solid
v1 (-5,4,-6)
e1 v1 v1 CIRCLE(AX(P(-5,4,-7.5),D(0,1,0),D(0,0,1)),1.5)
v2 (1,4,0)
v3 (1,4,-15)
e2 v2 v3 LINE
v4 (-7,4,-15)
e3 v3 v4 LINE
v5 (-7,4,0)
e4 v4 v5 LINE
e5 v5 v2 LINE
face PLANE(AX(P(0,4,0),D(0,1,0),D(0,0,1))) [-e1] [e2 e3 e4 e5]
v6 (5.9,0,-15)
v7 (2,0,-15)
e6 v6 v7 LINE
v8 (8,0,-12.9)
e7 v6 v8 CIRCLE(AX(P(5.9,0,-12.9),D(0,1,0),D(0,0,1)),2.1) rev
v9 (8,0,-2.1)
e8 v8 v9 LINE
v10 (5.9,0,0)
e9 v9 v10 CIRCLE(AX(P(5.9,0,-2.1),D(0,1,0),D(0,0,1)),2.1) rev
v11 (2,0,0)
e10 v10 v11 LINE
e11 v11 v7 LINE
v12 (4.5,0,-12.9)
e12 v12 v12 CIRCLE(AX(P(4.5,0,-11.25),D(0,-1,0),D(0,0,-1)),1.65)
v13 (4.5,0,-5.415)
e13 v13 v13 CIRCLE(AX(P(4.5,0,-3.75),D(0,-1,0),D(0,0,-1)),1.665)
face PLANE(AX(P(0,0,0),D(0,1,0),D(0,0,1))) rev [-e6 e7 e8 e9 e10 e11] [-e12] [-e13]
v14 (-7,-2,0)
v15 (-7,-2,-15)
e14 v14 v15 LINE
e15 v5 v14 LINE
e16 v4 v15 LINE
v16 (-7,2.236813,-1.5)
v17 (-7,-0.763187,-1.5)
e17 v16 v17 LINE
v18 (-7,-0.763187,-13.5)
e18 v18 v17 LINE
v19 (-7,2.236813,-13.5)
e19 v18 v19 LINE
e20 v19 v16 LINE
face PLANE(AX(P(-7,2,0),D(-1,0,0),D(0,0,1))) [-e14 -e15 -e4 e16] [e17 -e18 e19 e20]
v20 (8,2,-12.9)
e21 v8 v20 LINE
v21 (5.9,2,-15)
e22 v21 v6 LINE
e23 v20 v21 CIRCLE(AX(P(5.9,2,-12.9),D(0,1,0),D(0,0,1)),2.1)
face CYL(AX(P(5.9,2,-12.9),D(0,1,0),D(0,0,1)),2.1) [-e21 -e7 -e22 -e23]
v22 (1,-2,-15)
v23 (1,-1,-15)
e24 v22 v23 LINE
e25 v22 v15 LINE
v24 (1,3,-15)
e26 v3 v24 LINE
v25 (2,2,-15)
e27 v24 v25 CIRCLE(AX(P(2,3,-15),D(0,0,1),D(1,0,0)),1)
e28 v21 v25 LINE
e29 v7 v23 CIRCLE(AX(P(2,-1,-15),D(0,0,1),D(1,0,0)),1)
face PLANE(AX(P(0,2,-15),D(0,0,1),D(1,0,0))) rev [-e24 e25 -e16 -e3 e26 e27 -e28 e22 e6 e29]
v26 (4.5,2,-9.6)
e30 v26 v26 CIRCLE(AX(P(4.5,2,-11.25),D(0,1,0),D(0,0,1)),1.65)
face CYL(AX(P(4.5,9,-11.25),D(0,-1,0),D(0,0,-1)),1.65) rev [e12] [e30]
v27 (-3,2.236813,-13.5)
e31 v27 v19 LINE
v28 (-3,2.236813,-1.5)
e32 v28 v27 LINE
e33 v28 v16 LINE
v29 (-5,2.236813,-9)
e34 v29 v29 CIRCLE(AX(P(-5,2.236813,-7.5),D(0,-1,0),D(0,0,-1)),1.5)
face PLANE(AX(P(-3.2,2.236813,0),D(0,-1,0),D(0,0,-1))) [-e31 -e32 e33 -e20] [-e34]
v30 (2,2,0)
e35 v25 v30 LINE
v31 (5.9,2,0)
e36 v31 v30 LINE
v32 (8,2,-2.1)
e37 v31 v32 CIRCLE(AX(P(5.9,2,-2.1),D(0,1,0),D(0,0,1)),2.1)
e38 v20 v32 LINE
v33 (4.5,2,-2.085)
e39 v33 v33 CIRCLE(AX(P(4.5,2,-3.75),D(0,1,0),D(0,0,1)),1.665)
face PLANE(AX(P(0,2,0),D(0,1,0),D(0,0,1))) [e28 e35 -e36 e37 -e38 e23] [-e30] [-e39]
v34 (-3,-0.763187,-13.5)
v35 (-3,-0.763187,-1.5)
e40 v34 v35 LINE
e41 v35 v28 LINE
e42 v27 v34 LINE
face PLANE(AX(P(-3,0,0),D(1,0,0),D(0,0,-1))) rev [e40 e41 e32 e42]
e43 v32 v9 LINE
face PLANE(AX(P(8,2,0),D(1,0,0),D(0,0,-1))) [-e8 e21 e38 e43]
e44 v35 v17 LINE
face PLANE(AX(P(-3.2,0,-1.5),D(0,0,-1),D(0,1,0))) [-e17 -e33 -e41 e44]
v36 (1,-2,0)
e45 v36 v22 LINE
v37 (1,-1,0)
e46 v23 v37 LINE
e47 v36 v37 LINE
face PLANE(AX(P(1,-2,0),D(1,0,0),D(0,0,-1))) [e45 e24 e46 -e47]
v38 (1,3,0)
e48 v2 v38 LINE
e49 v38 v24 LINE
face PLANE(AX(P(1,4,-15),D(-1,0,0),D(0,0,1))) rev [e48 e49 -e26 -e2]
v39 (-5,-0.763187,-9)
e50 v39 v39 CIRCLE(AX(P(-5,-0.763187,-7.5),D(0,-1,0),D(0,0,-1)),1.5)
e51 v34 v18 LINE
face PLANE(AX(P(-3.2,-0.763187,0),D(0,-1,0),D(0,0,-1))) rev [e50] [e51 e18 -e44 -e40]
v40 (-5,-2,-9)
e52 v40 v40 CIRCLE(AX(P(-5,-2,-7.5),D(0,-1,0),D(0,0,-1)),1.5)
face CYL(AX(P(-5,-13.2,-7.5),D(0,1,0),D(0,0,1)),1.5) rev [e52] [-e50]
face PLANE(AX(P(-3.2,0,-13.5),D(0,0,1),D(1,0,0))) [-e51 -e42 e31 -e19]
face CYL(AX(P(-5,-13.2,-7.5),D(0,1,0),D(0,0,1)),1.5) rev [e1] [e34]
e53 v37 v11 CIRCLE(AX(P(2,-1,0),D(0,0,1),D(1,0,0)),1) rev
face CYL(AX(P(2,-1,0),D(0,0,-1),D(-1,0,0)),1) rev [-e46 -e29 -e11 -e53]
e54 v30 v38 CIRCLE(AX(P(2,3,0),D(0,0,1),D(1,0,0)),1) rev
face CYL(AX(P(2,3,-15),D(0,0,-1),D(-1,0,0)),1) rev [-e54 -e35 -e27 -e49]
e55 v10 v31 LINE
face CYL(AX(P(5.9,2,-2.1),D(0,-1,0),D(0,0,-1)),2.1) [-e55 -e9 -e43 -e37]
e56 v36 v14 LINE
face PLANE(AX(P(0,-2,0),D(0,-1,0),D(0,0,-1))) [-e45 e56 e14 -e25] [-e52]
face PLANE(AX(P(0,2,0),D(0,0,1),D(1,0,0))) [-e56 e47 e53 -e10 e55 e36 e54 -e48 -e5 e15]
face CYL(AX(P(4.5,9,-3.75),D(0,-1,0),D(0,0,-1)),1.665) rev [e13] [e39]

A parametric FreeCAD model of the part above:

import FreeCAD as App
import Part
import Sketcher
Q = App.Units.Quantity


def edges_at(feature, points):
    """Names of the edges that pass closest to the given points."""
    edges = feature.Shape.Edges
    near = lambda p: min(range(len(edges)), key=lambda i: edges[i].distToShape(Part.Vertex(*p))[0])
    return sorted({f"Edge{near(p) + 1}" for p in points})

doc = App.newDocument("Part")
body = doc.addObject("PartDesign::Body", "Body")

sketch1 = body.newObject("Sketcher::SketchObject", "Sketch")
sketch1.AttachmentSupport = (doc.getObject("XZ_Plane"), [""])
sketch1.MapMode = "FlatFace"
sketch1.addGeometry([
    Part.LineSegment(App.Vector(-7, -15, 0), App.Vector(-7, 0, 0)),
    Part.LineSegment(App.Vector(-7, 0, 0), App.Vector(8, 0, 0)),
    Part.LineSegment(App.Vector(8, 0, 0), App.Vector(8, -15, 0)),
    Part.LineSegment(App.Vector(8, -15, 0), App.Vector(-7, -15, 0)),
], False)
sketch1.addConstraint([
    Sketcher.Constraint("Coincident", 0, 2, 1, 1),
    Sketcher.Constraint("Coincident", 1, 2, 2, 1),
    Sketcher.Constraint("Coincident", 2, 2, 3, 1),
    Sketcher.Constraint("Coincident", 3, 2, 0, 1),
    Sketcher.Constraint("Vertical", 0),
    Sketcher.Constraint("Horizontal", 1),
    Sketcher.Constraint("Vertical", 2),
    Sketcher.Constraint("Horizontal", 3),
    Sketcher.Constraint("PointOnObject", 0, 2, -1),
    Sketcher.Constraint("Equal", 3, 0),
    Sketcher.Constraint("DistanceX", 1, 1, 1, 2, Q("15 mm")),
    Sketcher.Constraint("DistanceX", 0, 2, -1, 1, Q("7 mm")),
])
pad1 = body.newObject("PartDesign::Pad", "Pad")
pad1.Profile = sketch1
pad1.Length = 2
pad1.Reversed = True

sketch2 = body.newObject("Sketcher::SketchObject", "Sketch001")
sketch2.AttachmentSupport = (doc.getObject("XZ_Plane"), [""])
sketch2.MapMode = "FlatFace"
sketch2.addGeometry([
    Part.LineSegment(App.Vector(-7, 0, 0), App.Vector(-7, -15, 0)),
    Part.LineSegment(App.Vector(-7, -15, 0), App.Vector(1, -15, 0)),
    Part.LineSegment(App.Vector(1, -15, 0), App.Vector(1, 0, 0)),
    Part.LineSegment(App.Vector(1, 0, 0), App.Vector(-7, 0, 0)),
], False)
sketch2.addConstraint([
    Sketcher.Constraint("Coincident", 0, 2, 1, 1),
    Sketcher.Constraint("Coincident", 1, 2, 2, 1),
    Sketcher.Constraint("Coincident", 2, 2, 3, 1),
    Sketcher.Constraint("Coincident", 3, 2, 0, 1),
    Sketcher.Constraint("Vertical", 0),
    Sketcher.Constraint("Horizontal", 1),
    Sketcher.Constraint("Vertical", 2),
    Sketcher.Constraint("Horizontal", 3),
    Sketcher.Constraint("PointOnObject", 2, 2, -1),
    Sketcher.Constraint("DistanceX", 1, 1, 1, 2, Q("8 mm")),
    Sketcher.Constraint("DistanceY", 0, 2, 0, 1, Q("15 mm")),
    Sketcher.Constraint("DistanceX", 0, 2, -1, 1, Q("7 mm")),
])
pad2 = body.newObject("PartDesign::Pad", "Pad001")
pad2.Profile = sketch2
pad2.Length = 2

sketch3 = body.newObject("Sketcher::SketchObject", "Sketch002")
sketch3.AttachmentSupport = (doc.getObject("XZ_Plane"), [""])
sketch3.MapMode = "FlatFace"
sketch3.AttachmentOffset = App.Placement(App.Vector(0, 0, -2), App.Rotation())
sketch3.addGeometry([
    Part.LineSegment(App.Vector(-7, -15, 0), App.Vector(-7, 0, 0)),
    Part.LineSegment(App.Vector(-7, 0, 0), App.Vector(1, 0, 0)),
    Part.LineSegment(App.Vector(1, 0, 0), App.Vector(1, -15, 0)),
    Part.LineSegment(App.Vector(1, -15, 0), App.Vector(-7, -15, 0)),
], False)
sketch3.addConstraint([
    Sketcher.Constraint("Coincident", 0, 2, 1, 1),
    Sketcher.Constraint("Coincident", 1, 2, 2, 1),
    Sketcher.Constraint("Coincident", 2, 2, 3, 1),
    Sketcher.Constraint("Coincident", 3, 2, 0, 1),
    Sketcher.Constraint("Vertical", 0),
    Sketcher.Constraint("Horizontal", 1),
    Sketcher.Constraint("Vertical", 2),
    Sketcher.Constraint("Horizontal", 3),
    Sketcher.Constraint("PointOnObject", 0, 2, -1),
    Sketcher.Constraint("DistanceX", 1, 1, 1, 2, Q("8 mm")),
    Sketcher.Constraint("DistanceY", 0, 1, 0, 2, Q("15 mm")),
    Sketcher.Constraint("DistanceX", 0, 2, -1, 1, Q("7 mm")),
])
pad3 = body.newObject("PartDesign::Pad", "Pad002")
pad3.Profile = sketch3
pad3.Length = 2
pad3.Reversed = True

sketch4 = body.newObject("Sketcher::SketchObject", "Sketch003")
sketch4.AttachmentSupport = (doc.getObject("XZ_Plane"), [""])
sketch4.MapMode = "FlatFace"
sketch4.addGeometry([
    Part.Circle(App.Vector(4.5, -3.75, 0), App.Vector(0, 0, 1), 1.665),
    Part.Circle(App.Vector(4.5, -11.25, 0), App.Vector(0, 0, 1), 1.65),
], False)
sketch4.addConstraint([
    Sketcher.Constraint("Vertical", 0, 3, 1, 3),
    Sketcher.Constraint("Diameter", 1, Q("3.3 mm")),
    Sketcher.Constraint("Diameter", 0, Q("3.33 mm")),
    Sketcher.Constraint("DistanceX", -1, 1, 0, 3, Q("4.5 mm")),
    Sketcher.Constraint("DistanceY", 1, 3, 0, 3, Q("7.5 mm")),
    Sketcher.Constraint("DistanceY", 0, 3, -1, 1, Q("3.75 mm")),
])
pocket1 = body.newObject("PartDesign::Pocket", "Pocket")
pocket1.Profile = sketch4
pocket1.Length = 9
doc.recompute()

fillet = body.newObject("PartDesign::Fillet", "Fillet")
fillet.Base = (pocket1, edges_at(pocket1, [(8, 1, 0)]))
fillet.Radius = 2.1
doc.recompute()

fillet2 = body.newObject("PartDesign::Fillet", "Fillet001")
fillet2.Base = (fillet, edges_at(fillet, [(8, 1, -15)]))
fillet2.Radius = 2.1

sketch5 = body.newObject("Sketcher::SketchObject", "Sketch004")
sketch5.AttachmentSupport = (doc.getObject("YZ_Plane"), [""])
sketch5.MapMode = "FlatFace"
sketch5.AttachmentOffset = App.Placement(App.Vector(0, 0, -7), App.Rotation())
sketch5.addGeometry([
    Part.LineSegment(App.Vector(2.236813, -13.5, 0), App.Vector(-0.763187, -13.5, 0)),
    Part.LineSegment(App.Vector(-0.763187, -13.5, 0), App.Vector(-0.763187, -1.5, 0)),
    Part.LineSegment(App.Vector(-0.763187, -1.5, 0), App.Vector(2.236813, -1.5, 0)),
    Part.LineSegment(App.Vector(2.236813, -1.5, 0), App.Vector(2.236813, -13.5, 0)),
], False)
sketch5.addConstraint([
    Sketcher.Constraint("Coincident", 0, 2, 1, 1),
    Sketcher.Constraint("Coincident", 1, 2, 2, 1),
    Sketcher.Constraint("Coincident", 2, 2, 3, 1),
    Sketcher.Constraint("Coincident", 3, 2, 0, 1),
    Sketcher.Constraint("Horizontal", 0),
    Sketcher.Constraint("Vertical", 1),
    Sketcher.Constraint("Horizontal", 2),
    Sketcher.Constraint("Vertical", 3),
    Sketcher.Constraint("DistanceX", 0, 2, 0, 1, Q("3 mm")),
    Sketcher.Constraint("DistanceY", 1, 1, 1, 2, Q("12 mm")),
    Sketcher.Constraint("DistanceY", 0, 2, -1, 1, Q("13.5 mm")),
    Sketcher.Constraint("DistanceX", 0, 2, -1, 1, Q("0.763187 mm")),
])
pocket2 = body.newObject("PartDesign::Pocket", "Pocket001")
pocket2.Profile = sketch5
pocket2.Length = 3.8
pocket2.Reversed = True

sketch6 = body.newObject("Sketcher::SketchObject", "Sketch005")
sketch6.AttachmentSupport = (doc.getObject("XZ_Plane"), [""])
sketch6.MapMode = "FlatFace"
sketch6.AttachmentOffset = App.Placement(App.Vector(0, 0, -4), App.Rotation())
sketch6.addGeometry(Part.Circle(App.Vector(-5, -7.5, 0), App.Vector(0, 0, 1), 1.5), False)
sketch6.addConstraint([
    Sketcher.Constraint("Diameter", 0, Q("3 mm")),
    Sketcher.Constraint("DistanceX", 0, 3, -1, 1, Q("5 mm")),
    Sketcher.Constraint("DistanceY", 0, 3, -1, 1, Q("7.5 mm")),
])
pocket3 = body.newObject("PartDesign::Pocket", "Pocket002")
pocket3.Profile = sketch6
pocket3.Length = 17.2
pocket3.Reversed = True
doc.recompute()

fillet3 = body.newObject("PartDesign::Fillet", "Fillet002")
fillet3.Base = (pocket3, edges_at(pocket3, [(1, 0, -7.5)]))
fillet3.Radius = 1
doc.recompute()

fillet4 = body.newObject("PartDesign::Fillet", "Fillet003")
fillet4.Base = (fillet3, edges_at(fillet3, [(1, 2, -7.5)]))
fillet4.Radius = 1

sketch7 = body.newObject("Sketcher::SketchObject", "Sketch006")
sketch7.AttachmentSupport = (doc.getObject("YZ_Plane"), [""])
sketch7.MapMode = "FlatFace"
sketch7.AttachmentOffset = App.Placement(App.Vector(0, 0, -3.2), App.Rotation())
sketch7.addGeometry([
    Part.LineSegment(App.Vector(2.236813, -13.5, 0), App.Vector(-0.763187, -13.5, 0)),
    Part.LineSegment(App.Vector(-0.763187, -13.5, 0), App.Vector(-0.763187, -1.5, 0)),
    Part.LineSegment(App.Vector(-0.763187, -1.5, 0), App.Vector(2.236813, -1.5, 0)),
    Part.LineSegment(App.Vector(2.236813, -1.5, 0), App.Vector(2.236813, -13.5, 0)),
], False)
sketch7.addConstraint([
    Sketcher.Constraint("Coincident", 0, 2, 1, 1),
    Sketcher.Constraint("Coincident", 1, 2, 2, 1),
    Sketcher.Constraint("Coincident", 2, 2, 3, 1),
    Sketcher.Constraint("Coincident", 3, 2, 0, 1),
    Sketcher.Constraint("Horizontal", 0),
    Sketcher.Constraint("Vertical", 1),
    Sketcher.Constraint("Horizontal", 2),
    Sketcher.Constraint("Vertical", 3),
    Sketcher.Constraint("DistanceX", 0, 2, 0, 1, Q("3 mm")),
    Sketcher.Constraint("DistanceY", 1, 1, 1, 2, Q("12 mm")),
    Sketcher.Constraint("DistanceY", 0, 2, -1, 1, Q("13.5 mm")),
    Sketcher.Constraint("DistanceX", 0, 2, -1, 1, Q("0.763187 mm")),
])
pocket4 = body.newObject("PartDesign::Pocket", "Pocket003")
pocket4.Profile = sketch7
pocket4.Length = 0.2
pocket4.Reversed = True

doc.recompute()
